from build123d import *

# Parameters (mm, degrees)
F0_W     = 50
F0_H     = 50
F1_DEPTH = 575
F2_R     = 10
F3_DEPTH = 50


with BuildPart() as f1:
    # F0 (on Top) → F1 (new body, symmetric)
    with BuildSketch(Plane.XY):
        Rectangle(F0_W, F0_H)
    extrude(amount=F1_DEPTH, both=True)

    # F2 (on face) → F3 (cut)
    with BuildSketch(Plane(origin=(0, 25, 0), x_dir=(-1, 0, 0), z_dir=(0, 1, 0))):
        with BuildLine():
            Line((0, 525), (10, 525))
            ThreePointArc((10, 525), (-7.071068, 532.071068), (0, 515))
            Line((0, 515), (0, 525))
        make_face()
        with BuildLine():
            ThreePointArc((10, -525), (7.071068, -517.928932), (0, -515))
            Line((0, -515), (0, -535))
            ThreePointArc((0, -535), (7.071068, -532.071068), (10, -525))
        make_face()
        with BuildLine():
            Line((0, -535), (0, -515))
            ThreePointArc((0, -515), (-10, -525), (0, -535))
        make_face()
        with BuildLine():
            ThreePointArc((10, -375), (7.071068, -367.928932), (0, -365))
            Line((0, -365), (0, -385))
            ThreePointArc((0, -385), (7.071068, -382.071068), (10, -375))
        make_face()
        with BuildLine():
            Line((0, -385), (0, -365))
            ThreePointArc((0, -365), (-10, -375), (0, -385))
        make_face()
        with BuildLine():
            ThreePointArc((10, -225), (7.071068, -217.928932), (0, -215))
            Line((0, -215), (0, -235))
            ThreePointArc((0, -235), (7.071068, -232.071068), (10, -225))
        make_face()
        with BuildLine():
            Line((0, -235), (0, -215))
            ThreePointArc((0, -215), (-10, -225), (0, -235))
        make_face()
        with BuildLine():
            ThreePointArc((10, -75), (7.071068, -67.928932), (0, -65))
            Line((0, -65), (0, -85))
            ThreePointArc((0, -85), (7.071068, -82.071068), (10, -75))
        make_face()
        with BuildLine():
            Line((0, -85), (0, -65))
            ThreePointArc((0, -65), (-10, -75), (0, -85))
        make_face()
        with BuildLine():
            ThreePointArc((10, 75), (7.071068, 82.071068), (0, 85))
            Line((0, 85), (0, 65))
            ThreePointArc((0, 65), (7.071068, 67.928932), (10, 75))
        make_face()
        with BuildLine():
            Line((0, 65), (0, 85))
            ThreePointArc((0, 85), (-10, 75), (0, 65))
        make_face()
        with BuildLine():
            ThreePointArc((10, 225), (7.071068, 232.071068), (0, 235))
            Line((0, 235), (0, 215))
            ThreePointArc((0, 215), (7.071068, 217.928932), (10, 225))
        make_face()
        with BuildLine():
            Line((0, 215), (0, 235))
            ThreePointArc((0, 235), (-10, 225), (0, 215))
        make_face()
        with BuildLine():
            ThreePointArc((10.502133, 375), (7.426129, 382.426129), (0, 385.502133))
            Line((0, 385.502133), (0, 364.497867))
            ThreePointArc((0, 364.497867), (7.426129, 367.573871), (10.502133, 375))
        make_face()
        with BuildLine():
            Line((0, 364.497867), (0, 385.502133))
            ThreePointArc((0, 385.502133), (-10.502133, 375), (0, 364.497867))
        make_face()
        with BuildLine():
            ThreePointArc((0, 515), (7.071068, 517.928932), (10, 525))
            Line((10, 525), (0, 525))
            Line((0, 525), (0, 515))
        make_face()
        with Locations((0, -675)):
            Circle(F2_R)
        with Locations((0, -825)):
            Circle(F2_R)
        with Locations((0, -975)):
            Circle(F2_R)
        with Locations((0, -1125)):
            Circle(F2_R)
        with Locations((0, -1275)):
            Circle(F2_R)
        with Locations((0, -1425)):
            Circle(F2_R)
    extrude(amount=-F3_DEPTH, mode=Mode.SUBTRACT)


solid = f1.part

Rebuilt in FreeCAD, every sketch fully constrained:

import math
import FreeCAD as App
import Part
import Sketcher

V = App.Vector

doc = App.newDocument("Part")
body = doc.addObject("PartDesign::Body", "Body")

# Sketch on XY plane
sketch1 = body.newObject("Sketcher::SketchObject", "Sketch")
sketch1.AttachmentSupport = (doc.getObject("XY_Plane"), [""])
sketch1.MapMode = "FlatFace"
sketch1.addGeometry([
    Part.LineSegment(V(-25, 25, 0), V(-25, -25, 0)),
    Part.LineSegment(V(-25, -25, 0), V(25, -25, 0)),
    Part.LineSegment(V(25, -25, 0), V(25, 25, 0)),
    Part.LineSegment(V(25, 25, 0), V(-25, 25, 0)),
], False)
sketch1.addConstraint([
    Sketcher.Constraint("Coincident", 0, 2, 1, 1),
    Sketcher.Constraint("Coincident", 1, 2, 2, 1),
    Sketcher.Constraint("Coincident", 2, 2, 3, 1),
    Sketcher.Constraint("Coincident", 3, 2, 0, 1),
    Sketcher.Constraint("Vertical", 0),
    Sketcher.Constraint("Horizontal", 1),
    Sketcher.Constraint("Vertical", 2),
    Sketcher.Constraint("Horizontal", 3),
    Sketcher.Constraint("Symmetric", 0, 2, 2, 2, -1, 1),
    Sketcher.Constraint("Equal", 3, 0),
    Sketcher.Constraint("DistanceX", 1, 1, 1, 2, 50.0),
])
pad1 = body.newObject("PartDesign::Pad", "Pad")
pad1.Profile = sketch1
pad1.Length = 1150
pad1.Midplane = True

# Sketch on XZ plane
sketch2 = body.newObject("Sketcher::SketchObject", "Sketch001")
sketch2.AttachmentSupport = (doc.getObject("XZ_Plane"), [""])
sketch2.MapMode = "FlatFace"
sketch2.AttachmentOffset = App.Placement(V(0, 0, -25), App.Rotation())
sketch2.addGeometry([
    Part.ArcOfCircle(Part.Circle(V(0, 525, 0), V(0, 0, 1), 10), math.radians(-90), math.radians(180)),  # 0
    Part.ArcOfCircle(Part.Circle(V(0, 525, 0), V(0, 0, 1), 10), math.radians(180), math.radians(270)),  # 1
    Part.ArcOfCircle(Part.Circle(V(0, -525, 0), V(0, 0, 1), 10), math.radians(90), math.radians(180)),  # 2
    Part.ArcOfCircle(Part.Circle(V(0, -525, 0), V(0, 0, 1), 10), math.radians(-90), math.radians(90)),  # 3
    Part.ArcOfCircle(Part.Circle(V(0, -525, 0), V(0, 0, 1), 10), math.radians(180), math.radians(270)),  # 4
    Part.ArcOfCircle(Part.Circle(V(0, -375, 0), V(0, 0, 1), 10), math.radians(90), math.radians(180)),  # 5
    Part.ArcOfCircle(Part.Circle(V(0, -375, 0), V(0, 0, 1), 10), math.radians(-90), math.radians(90)),  # 6
    Part.ArcOfCircle(Part.Circle(V(0, -375, 0), V(0, 0, 1), 10), math.radians(180), math.radians(270)),  # 7
    Part.ArcOfCircle(Part.Circle(V(0, -225, 0), V(0, 0, 1), 10), math.radians(90), math.radians(180)),  # 8
    Part.ArcOfCircle(Part.Circle(V(0, -225, 0), V(0, 0, 1), 10), math.radians(-90), math.radians(90)),  # 9
    Part.ArcOfCircle(Part.Circle(V(0, -225, 0), V(0, 0, 1), 10), math.radians(180), math.radians(270)),  # 10
    Part.ArcOfCircle(Part.Circle(V(0, -75, 0), V(0, 0, 1), 10), math.radians(90), math.radians(180)),  # 11
    Part.ArcOfCircle(Part.Circle(V(0, -75, 0), V(0, 0, 1), 10), math.radians(-90), math.radians(90)),  # 12
    Part.ArcOfCircle(Part.Circle(V(0, -75, 0), V(0, 0, 1), 10), math.radians(180), math.radians(270)),  # 13
    Part.ArcOfCircle(Part.Circle(V(0, 75, 0), V(0, 0, 1), 10), math.radians(90), math.radians(180)),  # 14
    Part.ArcOfCircle(Part.Circle(V(0, 75, 0), V(0, 0, 1), 10), math.radians(-90), math.radians(90)),  # 15
    Part.ArcOfCircle(Part.Circle(V(0, 75, 0), V(0, 0, 1), 10), math.radians(180), math.radians(270)),  # 16
    Part.ArcOfCircle(Part.Circle(V(0, 225, 0), V(0, 0, 1), 10), math.radians(90), math.radians(180)),  # 17
    Part.ArcOfCircle(Part.Circle(V(0, 225, 0), V(0, 0, 1), 10), math.radians(-90), math.radians(90)),  # 18
    Part.ArcOfCircle(Part.Circle(V(0, 225, 0), V(0, 0, 1), 10), math.radians(180), math.radians(270)),  # 19
    Part.ArcOfCircle(Part.Circle(V(0, 375, 0), V(0, 0, 1), 11), math.radians(90), math.radians(180)),  # 20
    Part.ArcOfCircle(Part.Circle(V(0, 375, 0), V(0, 0, 1), 11), math.radians(-90), math.radians(90)),  # 21
    Part.ArcOfCircle(Part.Circle(V(0, 375, 0), V(0, 0, 1), 11), math.radians(-180), math.radians(-90)),  # 22
    Part.Circle(V(0, -675, 0), V(0, 0, 1), 10),  # 23
    Part.Circle(V(0, -825, 0), V(0, 0, 1), 10),  # 24
    Part.Circle(V(0, -975, 0), V(0, 0, 1), 10),  # 25
    Part.Circle(V(0, -1125, 0), V(0, 0, 1), 10),  # 26
    Part.Circle(V(0, -1275, 0), V(0, 0, 1), 10),  # 27
    Part.Circle(V(0, -1425, 0), V(0, 0, 1), 10),  # 28
], False)
sketch2.addConstraint([
    Sketcher.Constraint("Tangent", 0, 1, 1, 2),
    Sketcher.Constraint("Coincident", 1, 1, 0, 2),
    Sketcher.Constraint("Tangent", 2, 1, 3, 2),
    Sketcher.Constraint("Tangent", 3, 1, 4, 2),
    Sketcher.Constraint("Tangent", 4, 1, 2, 2),
    Sketcher.Constraint("Tangent", 5, 1, 6, 2),
    Sketcher.Constraint("Tangent", 6, 1, 7, 2),
    Sketcher.Constraint("Tangent", 7, 1, 5, 2),
    Sketcher.Constraint("Tangent", 8, 1, 9, 2),
    Sketcher.Constraint("Tangent", 9, 1, 10, 2),
    Sketcher.Constraint("Tangent", 10, 1, 8, 2),
    Sketcher.Constraint("Tangent", 11, 1, 12, 2),
    Sketcher.Constraint("Tangent", 12, 1, 13, 2),
    Sketcher.Constraint("Tangent", 13, 1, 11, 2),
    Sketcher.Constraint("Tangent", 14, 1, 15, 2),
    Sketcher.Constraint("Tangent", 15, 1, 16, 2),
    Sketcher.Constraint("Tangent", 16, 1, 14, 2),
    Sketcher.Constraint("Tangent", 17, 1, 18, 2),
    Sketcher.Constraint("Tangent", 18, 1, 19, 2),
    Sketcher.Constraint("Tangent", 19, 1, 17, 2),
    Sketcher.Constraint("Tangent", 20, 1, 21, 2),
    Sketcher.Constraint("Tangent", 21, 1, 22, 2),
    Sketcher.Constraint("Tangent", 22, 1, 20, 2),
    Sketcher.Constraint("Equal", 1, 2),
    Sketcher.Constraint("Equal", 4, 5),
    Sketcher.Constraint("Equal", 7, 8),
    Sketcher.Constraint("Equal", 10, 11),
    Sketcher.Constraint("Equal", 13, 14),
    Sketcher.Constraint("Equal", 16, 17),
    Sketcher.Constraint("Equal", 19, 23),
    Sketcher.Constraint("Equal", 23, 24),
    Sketcher.Constraint("Equal", 24, 25),
    Sketcher.Constraint("Equal", 25, 26),
    Sketcher.Constraint("Equal", 26, 27),
    Sketcher.Constraint("Equal", 27, 28),
    Sketcher.Constraint("Symmetric", 0, 3, 2, 3, -1, 1),
    Sketcher.Constraint("Symmetric", 11, 3, 14, 3, -1, 1),
    Sketcher.Constraint("Symmetric", 8, 3, 17, 3, -1, 1),
    Sketcher.Constraint("Symmetric", 5, 3, 20, 3, -1, 1),
    Sketcher.Constraint("Symmetric", 1, 1, 4, 1, -1),
    Sketcher.Constraint("Symmetric", 13, 1, 16, 1, -1),
    Sketcher.Constraint("Symmetric", 10, 1, 19, 1, -1),
    Sketcher.Constraint("PointOnObject", 5, 3, -2),
    Sketcher.Constraint("PointOnObject", 23, 3, -2),
    Sketcher.Constraint("PointOnObject", 24, 3, -2),
    Sketcher.Constraint("PointOnObject", 25, 3, -2),
    Sketcher.Constraint("PointOnObject", 26, 3, -2),
    Sketcher.Constraint("PointOnObject", 27, 3, -2),
    Sketcher.Constraint("PointOnObject", 28, 3, -2),
    Sketcher.Constraint("PointOnObject", 0, 1, -2),
    Sketcher.Constraint("PointOnObject", 2, 1, -2),
    Sketcher.Constraint("PointOnObject", 3, 1, -2),
    Sketcher.Constraint("PointOnObject", 5, 1, -2),
    Sketcher.Constraint("PointOnObject", 6, 1, -2),
    Sketcher.Constraint("PointOnObject", 8, 1, -2),
    Sketcher.Constraint("PointOnObject", 9, 1, -2),
    Sketcher.Constraint("PointOnObject", 11, 1, -2),
    Sketcher.Constraint("PointOnObject", 12, 1, -2),
    Sketcher.Constraint("PointOnObject", 14, 1, -2),
    Sketcher.Constraint("PointOnObject", 15, 1, -2),
    Sketcher.Constraint("PointOnObject", 17, 1, -2),
    Sketcher.Constraint("PointOnObject", 18, 1, -2),
    Sketcher.Constraint("PointOnObject", 20, 1, -2),
    Sketcher.Constraint("PointOnObject", 21, 1, -2),
    Sketcher.Constraint("Horizontal", 0, 3, 1, 1),
    Sketcher.Constraint("Horizontal", 6, 3, 7, 1),
    Sketcher.Constraint("Horizontal", 9, 3, 10, 1),
    Sketcher.Constraint("Horizontal", 12, 3, 13, 1),
    Sketcher.Constraint("Horizontal", 21, 3, 22, 1),
    Sketcher.Constraint("Diameter", 23, 20.0),
    Sketcher.Constraint("DistanceY", -1, 1, 0, 3, 525.0),
    Sketcher.Constraint("DistanceY", 5, 3, -1, 1, 374.999999),
    Sketcher.Constraint("DistanceY", 8, 3, -1, 1, 224.999999),
    Sketcher.Constraint("DistanceY", 11, 3, -1, 1, 74.999999),
    Sketcher.Constraint("DistanceY", 23, 3, -1, 1, 675.0),
    Sketcher.Constraint("DistanceY", 24, 3, -1, 1, 825.0),
    Sketcher.Constraint("DistanceY", 25, 3, -1, 1, 975.0),
    Sketcher.Constraint("DistanceY", 26, 3, -1, 1, 1125.0),
    Sketcher.Constraint("DistanceY", 27, 3, -1, 1, 1275.0),
    Sketcher.Constraint("DistanceY", 28, 3, -1, 1, 1425.0),
    Sketcher.Constraint("Radius", 20, 10.502135),
])
pocket1 = body.newObject("PartDesign::Pocket", "Pocket")
pocket1.Profile = sketch2
pocket1.Length = 50
pocket1.Reversed = True

doc.recompute()
